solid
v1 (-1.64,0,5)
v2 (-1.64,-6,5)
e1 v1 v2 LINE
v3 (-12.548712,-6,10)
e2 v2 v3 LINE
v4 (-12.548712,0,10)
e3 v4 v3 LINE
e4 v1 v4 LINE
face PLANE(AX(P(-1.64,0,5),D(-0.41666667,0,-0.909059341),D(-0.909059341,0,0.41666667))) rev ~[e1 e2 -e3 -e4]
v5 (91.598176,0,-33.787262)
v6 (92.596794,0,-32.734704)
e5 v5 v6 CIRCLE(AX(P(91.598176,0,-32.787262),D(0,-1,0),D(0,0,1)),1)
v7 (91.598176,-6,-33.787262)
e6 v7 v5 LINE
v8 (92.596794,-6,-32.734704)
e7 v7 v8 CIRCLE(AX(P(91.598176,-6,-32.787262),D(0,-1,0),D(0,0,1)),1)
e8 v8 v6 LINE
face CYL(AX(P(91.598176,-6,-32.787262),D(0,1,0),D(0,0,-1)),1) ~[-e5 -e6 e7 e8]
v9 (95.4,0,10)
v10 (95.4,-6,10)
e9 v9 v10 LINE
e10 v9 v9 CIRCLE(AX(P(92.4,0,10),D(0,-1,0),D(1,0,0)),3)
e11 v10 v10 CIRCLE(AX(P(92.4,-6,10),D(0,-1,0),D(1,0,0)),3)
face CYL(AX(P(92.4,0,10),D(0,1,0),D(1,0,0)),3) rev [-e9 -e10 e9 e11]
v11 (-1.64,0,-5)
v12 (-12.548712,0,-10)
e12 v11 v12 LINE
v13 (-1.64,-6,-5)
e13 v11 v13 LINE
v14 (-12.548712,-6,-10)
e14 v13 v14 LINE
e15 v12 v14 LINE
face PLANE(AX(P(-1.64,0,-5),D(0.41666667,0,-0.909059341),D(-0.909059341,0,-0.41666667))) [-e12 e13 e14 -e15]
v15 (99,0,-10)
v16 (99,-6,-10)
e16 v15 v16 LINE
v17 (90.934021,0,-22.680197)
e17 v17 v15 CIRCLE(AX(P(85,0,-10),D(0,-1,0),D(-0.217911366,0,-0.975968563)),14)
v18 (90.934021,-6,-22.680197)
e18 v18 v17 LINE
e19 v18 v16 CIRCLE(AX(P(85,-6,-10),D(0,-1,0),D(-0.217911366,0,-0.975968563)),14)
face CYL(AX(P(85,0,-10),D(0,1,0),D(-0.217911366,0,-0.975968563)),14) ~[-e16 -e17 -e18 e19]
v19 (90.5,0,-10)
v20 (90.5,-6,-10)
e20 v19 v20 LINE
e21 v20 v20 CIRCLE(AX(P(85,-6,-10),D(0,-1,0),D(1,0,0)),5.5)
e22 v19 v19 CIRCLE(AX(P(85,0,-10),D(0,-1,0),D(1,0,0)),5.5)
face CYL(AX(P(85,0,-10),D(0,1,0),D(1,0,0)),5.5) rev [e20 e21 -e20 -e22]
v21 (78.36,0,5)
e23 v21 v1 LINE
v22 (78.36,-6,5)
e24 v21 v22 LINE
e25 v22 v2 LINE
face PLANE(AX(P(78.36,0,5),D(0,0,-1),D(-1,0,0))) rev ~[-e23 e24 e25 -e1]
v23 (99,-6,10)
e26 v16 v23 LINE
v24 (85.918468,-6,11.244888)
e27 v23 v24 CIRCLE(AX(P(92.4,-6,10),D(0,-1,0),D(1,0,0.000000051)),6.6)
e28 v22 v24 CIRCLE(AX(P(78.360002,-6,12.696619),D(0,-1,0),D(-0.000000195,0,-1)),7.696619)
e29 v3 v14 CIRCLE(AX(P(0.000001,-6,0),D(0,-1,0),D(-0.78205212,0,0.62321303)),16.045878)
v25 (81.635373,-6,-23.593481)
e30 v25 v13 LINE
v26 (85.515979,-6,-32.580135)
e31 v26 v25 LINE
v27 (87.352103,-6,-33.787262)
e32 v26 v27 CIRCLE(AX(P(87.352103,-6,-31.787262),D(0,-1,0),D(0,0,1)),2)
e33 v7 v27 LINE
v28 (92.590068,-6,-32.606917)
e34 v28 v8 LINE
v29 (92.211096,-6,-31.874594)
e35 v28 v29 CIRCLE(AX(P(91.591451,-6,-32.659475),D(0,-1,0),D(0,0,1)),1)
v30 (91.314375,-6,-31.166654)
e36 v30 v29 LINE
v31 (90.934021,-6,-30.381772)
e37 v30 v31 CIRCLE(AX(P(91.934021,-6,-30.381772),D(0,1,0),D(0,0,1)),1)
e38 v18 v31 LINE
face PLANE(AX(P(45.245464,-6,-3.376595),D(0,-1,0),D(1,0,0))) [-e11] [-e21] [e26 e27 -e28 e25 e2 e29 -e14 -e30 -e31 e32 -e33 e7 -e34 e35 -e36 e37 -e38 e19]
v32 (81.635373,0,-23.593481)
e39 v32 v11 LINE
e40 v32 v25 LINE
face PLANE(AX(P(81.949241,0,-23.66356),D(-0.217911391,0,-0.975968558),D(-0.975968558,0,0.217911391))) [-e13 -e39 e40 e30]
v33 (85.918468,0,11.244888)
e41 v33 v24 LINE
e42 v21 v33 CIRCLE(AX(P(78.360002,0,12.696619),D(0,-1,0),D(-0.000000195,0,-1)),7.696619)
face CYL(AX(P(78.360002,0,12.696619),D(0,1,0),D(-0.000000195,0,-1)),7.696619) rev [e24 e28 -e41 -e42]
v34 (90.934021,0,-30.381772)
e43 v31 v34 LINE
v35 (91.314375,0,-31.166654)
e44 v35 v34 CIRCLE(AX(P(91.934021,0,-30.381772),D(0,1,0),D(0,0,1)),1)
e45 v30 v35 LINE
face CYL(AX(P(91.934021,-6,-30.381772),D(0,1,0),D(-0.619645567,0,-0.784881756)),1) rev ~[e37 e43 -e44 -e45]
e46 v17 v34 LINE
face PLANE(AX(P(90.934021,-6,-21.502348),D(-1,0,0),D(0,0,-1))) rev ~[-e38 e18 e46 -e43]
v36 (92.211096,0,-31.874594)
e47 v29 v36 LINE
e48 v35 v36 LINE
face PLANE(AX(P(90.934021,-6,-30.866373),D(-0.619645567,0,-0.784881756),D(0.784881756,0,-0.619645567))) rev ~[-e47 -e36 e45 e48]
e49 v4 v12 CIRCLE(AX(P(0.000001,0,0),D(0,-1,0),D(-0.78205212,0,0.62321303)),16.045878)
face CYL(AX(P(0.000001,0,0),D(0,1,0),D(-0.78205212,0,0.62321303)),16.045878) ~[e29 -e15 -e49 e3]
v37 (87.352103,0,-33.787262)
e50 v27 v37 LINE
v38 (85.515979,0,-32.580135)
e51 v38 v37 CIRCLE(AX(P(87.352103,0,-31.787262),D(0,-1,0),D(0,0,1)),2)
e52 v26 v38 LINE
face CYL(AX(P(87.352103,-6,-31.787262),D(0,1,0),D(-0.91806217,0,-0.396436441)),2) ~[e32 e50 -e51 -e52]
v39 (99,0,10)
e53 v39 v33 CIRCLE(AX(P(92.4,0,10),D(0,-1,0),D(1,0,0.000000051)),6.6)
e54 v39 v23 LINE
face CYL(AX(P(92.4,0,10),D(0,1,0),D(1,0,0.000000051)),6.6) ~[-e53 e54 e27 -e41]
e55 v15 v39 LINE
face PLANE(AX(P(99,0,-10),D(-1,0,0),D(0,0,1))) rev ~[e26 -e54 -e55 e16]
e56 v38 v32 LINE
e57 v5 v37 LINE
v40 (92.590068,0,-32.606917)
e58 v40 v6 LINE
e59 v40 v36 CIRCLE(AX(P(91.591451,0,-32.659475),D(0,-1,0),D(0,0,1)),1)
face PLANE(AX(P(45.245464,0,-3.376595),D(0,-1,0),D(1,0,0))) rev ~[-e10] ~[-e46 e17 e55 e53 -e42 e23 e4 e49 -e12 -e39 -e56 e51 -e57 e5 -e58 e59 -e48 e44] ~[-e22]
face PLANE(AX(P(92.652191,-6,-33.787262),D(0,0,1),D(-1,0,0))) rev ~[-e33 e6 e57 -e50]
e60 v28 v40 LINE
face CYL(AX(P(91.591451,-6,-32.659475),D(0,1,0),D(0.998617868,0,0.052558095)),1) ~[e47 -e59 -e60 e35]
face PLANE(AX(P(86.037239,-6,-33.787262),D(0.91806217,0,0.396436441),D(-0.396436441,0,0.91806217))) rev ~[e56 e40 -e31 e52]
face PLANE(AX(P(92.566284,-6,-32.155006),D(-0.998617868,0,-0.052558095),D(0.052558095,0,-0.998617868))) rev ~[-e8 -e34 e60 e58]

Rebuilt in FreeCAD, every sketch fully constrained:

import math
import FreeCAD as App
import Part
import Sketcher
from FreeCAD import Vector


def edges_at(feature, points):
    """Names of the edges that pass closest to the given points."""
    edges = feature.Shape.Edges
    near = lambda p: min(range(len(edges)), key=lambda i: edges[i].distToShape(Part.Vertex(*p))[0])
    return sorted({f"Edge{near(p) + 1}" for p in points})


def add_polygon(sketch, points):
    """Adds a closed chain of lines whose ends are joined by coincident constraints."""
    first, n = sketch.GeometryCount, len(points)
    for a, b in zip(points, points[1:] + points[:1]):
        sketch.addGeometry(Part.LineSegment(App.Vector(*a, 0), App.Vector(*b, 0)), False)
    for i in range(n):
        sketch.addConstraint(Sketcher.Constraint("Coincident", first + i, 2, first + (i + 1) % n, 1))

doc = App.newDocument("Part")
body = doc.addObject("PartDesign::Body", "Body")

# Sketch on XZ plane
sketch1 = body.newObject("Sketcher::SketchObject", "Sketch")
sketch1.AttachmentSupport = (doc.getObject("XZ_Plane"), [""])
sketch1.MapMode = "FlatFace"
sketch1.addGeometry([
    Part.ArcOfCircle(Part.Circle(Vector(0, 0, 0), Vector(0, 0, 1), 16), math.radians(141), math.radians(219)),  # 0
    Part.LineSegment(Vector(-12.5, -10, 0), Vector(-1.6, -5, 0)),  # 1
    Part.LineSegment(Vector(-1.6, -5, 0), Vector(81.9, -23.7, 0)),  # 2
    Part.ArcOfCircle(Part.Circle(Vector(85, -10, 0), Vector(0, 0, 1), 14), math.radians(-103), math.radians(0)),  # 3
    Part.LineSegment(Vector(99, -10, 0), Vector(99, 10, 0)),  # 4
    Part.ArcOfCircle(Part.Circle(Vector(92.4, 10, 0), Vector(0, 0, 1), 6.6), math.radians(0), math.radians(169)),  # 5
    Part.ArcOfCircle(Part.Circle(Vector(78.4, 12.7, 0), Vector(0, 0, 1), 7.7), math.radians(-90), math.radians(-11)),  # 6
    Part.LineSegment(Vector(78.4, 5, 0), Vector(-1.6, 5, 0)),  # 7
    Part.LineSegment(Vector(-1.6, 5, 0), Vector(-12.5, 10, 0)),  # 8
    Part.Circle(Vector(85, -10, 0), Vector(0, 0, 1), 5.5),  # 9
    Part.Circle(Vector(92.4, 10, 0), Vector(0, 0, 1), 3),  # 10
], False)
sketch1.addConstraint([
    Sketcher.Constraint("Coincident", 0, 2, 1, 1),
    Sketcher.Constraint("Coincident", 1, 2, 2, 1),
    Sketcher.Constraint("Tangent", 2, 2, 3, 1),
    Sketcher.Constraint("Tangent", 3, 2, 4, 1),
    Sketcher.Constraint("Tangent", 4, 2, 5, 1),
    Sketcher.Constraint("Tangent", 5, 2, 6, 2),
    Sketcher.Constraint("Tangent", 6, 1, 7, 1),
    Sketcher.Constraint("Coincident", 7, 2, 8, 1),
    Sketcher.Constraint("Coincident", 8, 2, 0, 1),
    Sketcher.Constraint("Vertical", 4),
    Sketcher.Constraint("Horizontal", 7),
    Sketcher.Constraint("Coincident", 0, 3, -1, 1),
    Sketcher.Constraint("Coincident", 9, 3, 3, 3),
    Sketcher.Constraint("Coincident", 10, 3, 5, 3),
    Sketcher.Constraint("Symmetric", 1, 2, 7, 2, -1),
    Sketcher.Constraint("Horizontal", 9, 3, 0, 2),
    Sketcher.Constraint("Horizontal", 4, 2, 8, 2),
    Sketcher.Constraint("Vertical", 0, 2, 8, 2),
    Sketcher.Constraint("Diameter", 9, 11.0),
    Sketcher.Constraint("Diameter", 10, 6.0),
    Sketcher.Constraint("Radius", 3, 14.0),
    Sketcher.Constraint("Radius", 5, 6.6),
    Sketcher.Constraint("DistanceX", 7, 2, 7, 1, 80.0),
    Sketcher.Constraint("DistanceY", 4, 1, 4, 2, 20.0),
    Sketcher.Constraint("Distance", 1, 12.0),
    Sketcher.Constraint("DistanceX", -1, 1, 3, 3, 85.0),
    Sketcher.Constraint("DistanceY", 1, 2, -1, 1, 5.0),
    Sketcher.Constraint("DistanceX", -1, 1, 6, 3, 78.360002),
])
pad1 = body.newObject("PartDesign::Pad", "Pad")
pad1.Profile = sketch1
pad1.Length = 6

# Sketch on XZ plane
sketch2 = body.newObject("Sketcher::SketchObject", "Sketch001")
sketch2.AttachmentSupport = (doc.getObject("XZ_Plane"), [""])
sketch2.MapMode = "FlatFace"
sketch2.AttachmentOffset = App.Placement(Vector(0, 0, 6), App.Rotation())
add_polygon(sketch2, [(90.9, -21.5), (81.1, -22.4), (86, -33.8), (92.7, -33.8), (92.6, -32.2), (90.9, -30.9)])  # lines 0-5
sketch2.addConstraint([
    Sketcher.Constraint("Horizontal", 2),
    Sketcher.Constraint("Vertical", 5),
    Sketcher.Constraint("Distance", 4, 2.079629),
    Sketcher.Constraint("DistanceX", 2, 1, 2, 2, 6.614952),
    Sketcher.Constraint("DistanceY", 5, 1, 5, 2, 9.364025),
    Sketcher.Constraint("DistanceX", -1, 1, 0, 2, 81.14045),
    Sketcher.Constraint("DistanceX", -1, 1, 1, 2, 86.037239),
    Sketcher.Constraint("DistanceY", 1, 2, -1, 1, 33.787262),
    Sketcher.Constraint("DistanceX", -1, 1, 4, 2, 90.934021),
    Sketcher.Constraint("DistanceY", 5, 2, -1, 1, 21.502348),
    Sketcher.Constraint("DistanceY", 3, 2, 0, 2, 9.707662),
    Sketcher.Constraint("DistanceY", 4, 2, 0, 2, 8.419029),
])
pad2 = body.newObject("PartDesign::Pad", "Pad001")
pad2.Profile = sketch2
pad2.Length = 6
pad2.Reversed = True
doc.recompute()

fillet = body.newObject("PartDesign::Fillet", "Fillet")
fillet.Base = (pad2, edges_at(pad2, [(86.037, -3, -33.787)]))
fillet.Radius = 2
doc.recompute()

fillet2 = body.newObject("PartDesign::Fillet", "Fillet001")
fillet2.Base = (fillet, edges_at(fillet, [(92.652, -3, -33.787)]))
fillet2.Radius = 1
doc.recompute()

fillet3 = body.newObject("PartDesign::Fillet", "Fillet002")
fillet3.Base = (fillet2, edges_at(fillet2, [(92.566, -3, -32.155)]))
fillet3.Radius = 1
doc.recompute()

fillet4 = body.newObject("PartDesign::Fillet", "Fillet003")
fillet4.Base = (fillet3, edges_at(fillet3, [(90.934, -3, -30.866)]))
fillet4.Radius = 1

doc.recompute()
